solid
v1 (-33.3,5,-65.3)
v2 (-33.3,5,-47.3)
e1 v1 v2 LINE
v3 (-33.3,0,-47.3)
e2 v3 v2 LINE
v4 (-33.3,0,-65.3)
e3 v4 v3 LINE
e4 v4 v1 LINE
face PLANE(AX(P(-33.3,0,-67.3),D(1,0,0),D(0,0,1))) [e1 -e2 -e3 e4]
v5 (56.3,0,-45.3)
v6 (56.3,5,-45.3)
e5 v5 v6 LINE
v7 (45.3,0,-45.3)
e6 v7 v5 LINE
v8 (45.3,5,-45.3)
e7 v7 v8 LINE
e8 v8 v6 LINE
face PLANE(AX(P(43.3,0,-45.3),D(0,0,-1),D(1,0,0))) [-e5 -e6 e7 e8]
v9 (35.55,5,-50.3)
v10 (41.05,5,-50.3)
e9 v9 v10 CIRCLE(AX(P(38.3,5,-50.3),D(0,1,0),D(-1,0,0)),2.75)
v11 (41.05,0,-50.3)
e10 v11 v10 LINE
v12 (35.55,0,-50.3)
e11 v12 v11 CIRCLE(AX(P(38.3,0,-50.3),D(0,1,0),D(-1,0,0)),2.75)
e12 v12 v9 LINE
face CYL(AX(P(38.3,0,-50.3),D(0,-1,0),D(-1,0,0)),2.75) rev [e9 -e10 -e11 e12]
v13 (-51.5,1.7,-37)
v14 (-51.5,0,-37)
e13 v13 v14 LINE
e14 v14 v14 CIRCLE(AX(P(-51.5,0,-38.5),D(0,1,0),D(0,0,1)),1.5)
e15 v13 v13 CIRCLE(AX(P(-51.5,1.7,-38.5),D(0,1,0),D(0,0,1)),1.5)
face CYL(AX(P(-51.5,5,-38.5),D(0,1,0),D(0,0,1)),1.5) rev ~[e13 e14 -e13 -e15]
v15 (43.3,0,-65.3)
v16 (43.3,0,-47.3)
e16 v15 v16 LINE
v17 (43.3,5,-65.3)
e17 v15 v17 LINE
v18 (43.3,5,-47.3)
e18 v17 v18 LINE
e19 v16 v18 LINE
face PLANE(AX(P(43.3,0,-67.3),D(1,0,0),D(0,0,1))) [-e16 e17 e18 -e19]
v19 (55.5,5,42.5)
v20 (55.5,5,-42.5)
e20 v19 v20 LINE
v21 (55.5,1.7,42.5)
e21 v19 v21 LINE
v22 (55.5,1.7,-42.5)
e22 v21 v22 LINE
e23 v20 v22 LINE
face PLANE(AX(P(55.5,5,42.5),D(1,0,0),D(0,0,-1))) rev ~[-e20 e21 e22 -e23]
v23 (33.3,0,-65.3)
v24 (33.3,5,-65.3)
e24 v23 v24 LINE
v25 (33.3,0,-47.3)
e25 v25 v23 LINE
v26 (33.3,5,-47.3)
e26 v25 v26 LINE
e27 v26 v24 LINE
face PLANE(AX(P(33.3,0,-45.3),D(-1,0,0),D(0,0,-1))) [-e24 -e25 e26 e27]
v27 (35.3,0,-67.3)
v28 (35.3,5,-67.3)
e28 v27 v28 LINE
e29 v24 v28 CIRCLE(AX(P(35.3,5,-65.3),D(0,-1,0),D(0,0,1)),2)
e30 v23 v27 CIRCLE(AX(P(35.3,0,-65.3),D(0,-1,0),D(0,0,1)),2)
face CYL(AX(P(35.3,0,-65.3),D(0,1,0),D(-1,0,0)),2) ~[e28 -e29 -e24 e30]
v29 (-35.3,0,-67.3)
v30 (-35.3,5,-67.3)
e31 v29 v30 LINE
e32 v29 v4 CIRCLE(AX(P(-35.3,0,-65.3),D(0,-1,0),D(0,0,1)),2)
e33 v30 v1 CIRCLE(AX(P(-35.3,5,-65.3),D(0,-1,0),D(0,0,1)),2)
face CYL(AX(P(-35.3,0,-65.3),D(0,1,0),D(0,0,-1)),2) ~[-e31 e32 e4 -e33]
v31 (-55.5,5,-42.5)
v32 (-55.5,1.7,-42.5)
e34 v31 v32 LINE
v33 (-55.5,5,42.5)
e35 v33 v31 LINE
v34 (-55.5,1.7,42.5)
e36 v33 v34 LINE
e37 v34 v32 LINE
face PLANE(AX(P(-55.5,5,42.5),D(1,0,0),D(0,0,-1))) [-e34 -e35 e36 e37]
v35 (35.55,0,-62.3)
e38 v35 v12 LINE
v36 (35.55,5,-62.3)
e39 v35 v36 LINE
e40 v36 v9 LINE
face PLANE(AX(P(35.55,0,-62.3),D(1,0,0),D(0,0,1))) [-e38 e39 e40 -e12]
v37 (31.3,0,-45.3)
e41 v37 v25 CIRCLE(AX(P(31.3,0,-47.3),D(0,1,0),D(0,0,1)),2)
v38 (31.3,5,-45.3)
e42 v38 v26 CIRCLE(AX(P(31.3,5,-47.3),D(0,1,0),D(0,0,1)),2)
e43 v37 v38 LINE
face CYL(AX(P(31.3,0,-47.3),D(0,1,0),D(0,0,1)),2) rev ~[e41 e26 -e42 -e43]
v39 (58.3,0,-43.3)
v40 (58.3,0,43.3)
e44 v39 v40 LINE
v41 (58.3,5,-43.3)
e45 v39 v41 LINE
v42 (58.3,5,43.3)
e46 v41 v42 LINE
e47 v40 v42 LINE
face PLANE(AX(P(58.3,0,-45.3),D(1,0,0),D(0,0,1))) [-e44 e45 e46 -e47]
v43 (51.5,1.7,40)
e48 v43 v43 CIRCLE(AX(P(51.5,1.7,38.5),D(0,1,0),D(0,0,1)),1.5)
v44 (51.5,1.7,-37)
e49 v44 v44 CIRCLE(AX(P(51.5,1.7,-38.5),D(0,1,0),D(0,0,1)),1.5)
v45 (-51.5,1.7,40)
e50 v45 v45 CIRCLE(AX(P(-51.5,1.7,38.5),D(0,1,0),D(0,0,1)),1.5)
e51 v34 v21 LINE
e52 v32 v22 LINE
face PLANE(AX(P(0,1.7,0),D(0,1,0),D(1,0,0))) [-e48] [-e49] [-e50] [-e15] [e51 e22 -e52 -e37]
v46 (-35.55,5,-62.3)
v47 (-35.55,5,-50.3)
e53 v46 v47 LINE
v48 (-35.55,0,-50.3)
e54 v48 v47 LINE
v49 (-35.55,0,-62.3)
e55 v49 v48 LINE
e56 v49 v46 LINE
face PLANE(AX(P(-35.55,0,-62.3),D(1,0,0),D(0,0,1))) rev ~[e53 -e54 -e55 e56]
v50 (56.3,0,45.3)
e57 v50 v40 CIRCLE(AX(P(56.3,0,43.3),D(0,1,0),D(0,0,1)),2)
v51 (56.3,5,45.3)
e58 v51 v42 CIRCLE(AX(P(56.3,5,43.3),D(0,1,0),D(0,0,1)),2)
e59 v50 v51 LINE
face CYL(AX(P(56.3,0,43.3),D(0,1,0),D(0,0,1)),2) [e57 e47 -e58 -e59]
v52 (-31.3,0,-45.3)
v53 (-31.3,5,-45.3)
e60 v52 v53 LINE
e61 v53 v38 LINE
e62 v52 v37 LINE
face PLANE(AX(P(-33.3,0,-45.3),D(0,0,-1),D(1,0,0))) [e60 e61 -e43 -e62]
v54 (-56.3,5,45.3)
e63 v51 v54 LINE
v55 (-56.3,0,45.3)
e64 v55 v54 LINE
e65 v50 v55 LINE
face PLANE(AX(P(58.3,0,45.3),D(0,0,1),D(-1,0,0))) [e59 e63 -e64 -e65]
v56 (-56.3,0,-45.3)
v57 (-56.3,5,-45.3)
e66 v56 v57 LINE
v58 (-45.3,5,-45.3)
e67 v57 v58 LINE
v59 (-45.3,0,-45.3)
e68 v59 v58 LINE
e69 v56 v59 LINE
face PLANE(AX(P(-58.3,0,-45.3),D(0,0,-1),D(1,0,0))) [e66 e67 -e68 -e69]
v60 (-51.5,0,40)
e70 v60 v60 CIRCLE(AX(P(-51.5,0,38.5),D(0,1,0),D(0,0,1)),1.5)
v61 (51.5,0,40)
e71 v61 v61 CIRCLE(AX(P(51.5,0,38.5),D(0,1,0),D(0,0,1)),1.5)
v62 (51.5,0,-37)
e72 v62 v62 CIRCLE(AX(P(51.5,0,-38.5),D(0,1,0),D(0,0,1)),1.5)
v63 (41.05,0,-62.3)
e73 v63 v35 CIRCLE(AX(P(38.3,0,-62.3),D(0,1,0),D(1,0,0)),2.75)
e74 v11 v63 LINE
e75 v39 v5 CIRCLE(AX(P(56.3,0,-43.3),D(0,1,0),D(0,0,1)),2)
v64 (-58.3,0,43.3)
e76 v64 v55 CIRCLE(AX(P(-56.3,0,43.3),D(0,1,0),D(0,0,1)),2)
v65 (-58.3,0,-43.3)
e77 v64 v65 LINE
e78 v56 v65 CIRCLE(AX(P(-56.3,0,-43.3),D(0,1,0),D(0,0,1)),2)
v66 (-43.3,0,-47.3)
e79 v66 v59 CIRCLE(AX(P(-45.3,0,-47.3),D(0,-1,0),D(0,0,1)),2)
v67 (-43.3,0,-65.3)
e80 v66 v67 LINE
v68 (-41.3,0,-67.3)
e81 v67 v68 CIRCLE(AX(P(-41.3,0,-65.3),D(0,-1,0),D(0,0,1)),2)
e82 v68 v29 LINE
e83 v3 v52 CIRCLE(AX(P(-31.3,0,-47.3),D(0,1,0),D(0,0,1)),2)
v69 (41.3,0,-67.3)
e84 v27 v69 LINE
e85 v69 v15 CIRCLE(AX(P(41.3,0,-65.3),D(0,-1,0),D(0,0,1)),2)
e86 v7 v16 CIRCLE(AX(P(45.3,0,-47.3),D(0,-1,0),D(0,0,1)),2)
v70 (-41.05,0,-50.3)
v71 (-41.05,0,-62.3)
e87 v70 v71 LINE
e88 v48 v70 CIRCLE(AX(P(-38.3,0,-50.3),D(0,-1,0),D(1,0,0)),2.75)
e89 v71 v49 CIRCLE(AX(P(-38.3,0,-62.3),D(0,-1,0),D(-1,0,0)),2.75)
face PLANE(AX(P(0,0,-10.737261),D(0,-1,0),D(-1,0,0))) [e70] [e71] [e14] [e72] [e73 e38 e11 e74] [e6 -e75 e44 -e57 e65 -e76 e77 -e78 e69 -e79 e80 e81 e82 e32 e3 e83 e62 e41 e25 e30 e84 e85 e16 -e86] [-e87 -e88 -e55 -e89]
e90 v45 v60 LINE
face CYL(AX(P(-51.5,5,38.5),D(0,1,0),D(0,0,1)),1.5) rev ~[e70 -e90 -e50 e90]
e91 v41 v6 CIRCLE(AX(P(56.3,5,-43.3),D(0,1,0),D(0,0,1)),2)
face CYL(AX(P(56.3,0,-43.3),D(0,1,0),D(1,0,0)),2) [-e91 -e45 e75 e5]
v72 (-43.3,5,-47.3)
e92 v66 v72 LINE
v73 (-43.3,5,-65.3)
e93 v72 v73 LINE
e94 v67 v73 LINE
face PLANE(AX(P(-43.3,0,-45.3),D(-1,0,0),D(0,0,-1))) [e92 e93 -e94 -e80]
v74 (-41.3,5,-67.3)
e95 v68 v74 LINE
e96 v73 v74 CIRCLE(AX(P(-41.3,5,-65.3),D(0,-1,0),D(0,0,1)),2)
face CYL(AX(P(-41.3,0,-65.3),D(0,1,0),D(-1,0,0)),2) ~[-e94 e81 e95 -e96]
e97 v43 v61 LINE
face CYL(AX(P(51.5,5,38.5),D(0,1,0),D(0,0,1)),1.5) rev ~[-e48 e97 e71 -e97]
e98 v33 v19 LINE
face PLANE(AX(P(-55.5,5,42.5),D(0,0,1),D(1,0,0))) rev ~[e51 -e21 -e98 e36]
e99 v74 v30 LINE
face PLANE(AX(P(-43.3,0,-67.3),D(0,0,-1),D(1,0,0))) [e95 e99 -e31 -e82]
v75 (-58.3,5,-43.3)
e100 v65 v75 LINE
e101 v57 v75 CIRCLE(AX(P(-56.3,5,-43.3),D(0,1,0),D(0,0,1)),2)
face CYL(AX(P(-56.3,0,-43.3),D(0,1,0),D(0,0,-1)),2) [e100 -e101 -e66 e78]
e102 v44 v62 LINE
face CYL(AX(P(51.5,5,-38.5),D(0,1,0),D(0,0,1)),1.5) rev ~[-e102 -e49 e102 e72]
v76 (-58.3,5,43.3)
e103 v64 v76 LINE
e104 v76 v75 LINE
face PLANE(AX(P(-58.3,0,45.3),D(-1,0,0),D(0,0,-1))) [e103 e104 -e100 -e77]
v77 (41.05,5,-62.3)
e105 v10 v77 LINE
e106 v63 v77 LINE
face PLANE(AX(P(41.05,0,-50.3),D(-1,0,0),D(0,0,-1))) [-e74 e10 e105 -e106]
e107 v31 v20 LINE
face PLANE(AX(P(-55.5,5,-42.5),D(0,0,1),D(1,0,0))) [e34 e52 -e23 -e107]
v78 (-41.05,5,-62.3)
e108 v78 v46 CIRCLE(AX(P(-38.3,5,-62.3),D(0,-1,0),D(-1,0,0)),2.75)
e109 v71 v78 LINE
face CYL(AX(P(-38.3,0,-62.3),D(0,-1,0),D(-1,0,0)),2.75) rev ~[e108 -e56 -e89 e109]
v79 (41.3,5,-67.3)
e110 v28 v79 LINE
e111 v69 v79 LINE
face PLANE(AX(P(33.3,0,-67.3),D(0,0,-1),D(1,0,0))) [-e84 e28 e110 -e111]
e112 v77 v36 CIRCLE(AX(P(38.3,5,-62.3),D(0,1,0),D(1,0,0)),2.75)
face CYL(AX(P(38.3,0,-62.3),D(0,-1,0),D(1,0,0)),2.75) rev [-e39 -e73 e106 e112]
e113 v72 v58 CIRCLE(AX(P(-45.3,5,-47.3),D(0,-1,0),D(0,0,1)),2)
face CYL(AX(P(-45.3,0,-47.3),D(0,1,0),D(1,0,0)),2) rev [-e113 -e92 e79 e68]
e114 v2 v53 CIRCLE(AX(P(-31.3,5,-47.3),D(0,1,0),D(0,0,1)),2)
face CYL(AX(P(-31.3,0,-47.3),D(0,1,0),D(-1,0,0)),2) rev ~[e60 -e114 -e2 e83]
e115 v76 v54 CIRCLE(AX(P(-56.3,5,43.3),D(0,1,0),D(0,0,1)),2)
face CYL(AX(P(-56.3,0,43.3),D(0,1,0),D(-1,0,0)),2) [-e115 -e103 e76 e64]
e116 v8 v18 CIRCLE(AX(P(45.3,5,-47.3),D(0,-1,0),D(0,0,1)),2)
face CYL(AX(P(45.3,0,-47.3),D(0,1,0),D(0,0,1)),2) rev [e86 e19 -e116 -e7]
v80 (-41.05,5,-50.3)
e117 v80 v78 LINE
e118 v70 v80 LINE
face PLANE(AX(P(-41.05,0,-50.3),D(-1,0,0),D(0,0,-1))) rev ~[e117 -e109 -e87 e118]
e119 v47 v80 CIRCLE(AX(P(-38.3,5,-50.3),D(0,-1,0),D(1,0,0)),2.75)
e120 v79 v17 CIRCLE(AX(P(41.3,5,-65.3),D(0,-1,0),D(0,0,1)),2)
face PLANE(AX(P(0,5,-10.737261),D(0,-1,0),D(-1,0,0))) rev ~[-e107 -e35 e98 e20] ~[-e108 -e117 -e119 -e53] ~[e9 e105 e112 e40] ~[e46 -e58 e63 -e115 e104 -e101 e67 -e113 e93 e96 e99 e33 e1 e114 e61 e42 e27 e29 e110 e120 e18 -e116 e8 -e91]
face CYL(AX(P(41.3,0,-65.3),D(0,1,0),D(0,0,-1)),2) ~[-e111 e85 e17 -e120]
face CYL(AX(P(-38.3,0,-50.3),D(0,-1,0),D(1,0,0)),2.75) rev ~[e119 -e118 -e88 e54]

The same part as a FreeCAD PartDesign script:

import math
import FreeCAD as App
import Part
import Sketcher
from FreeCAD import Vector
Q = App.Units.Quantity


def edges_at(feature, points):
    """Names of the edges that pass closest to the given points."""
    edges = feature.Shape.Edges
    near = lambda p: min(range(len(edges)), key=lambda i: edges[i].distToShape(Part.Vertex(*p))[0])
    return sorted({f"Edge{near(p) + 1}" for p in points})

doc = App.newDocument("Part")
params = doc.addObject("Spreadsheet::Sheet", "Params")
for row, (alias, value) in enumerate([
    ("sketch1_width", "15 mm"),
    ("sketch1_width2", "10 mm"),
    ("sketch1_height", "22 mm"),
    ("sketch1_height2", "12 mm"),
    ("sketch1_radius", "2.75 mm"),
    ("pad1_length", "5 mm"),
    ("sketch2_diameter", "3 mm"),
    ("sketch3_diameter", "3 mm"),
    ("sketch3_width", "111 mm"),
    ("sketch3_height", "85 mm"),
    ("pocket2_length", "3.3 mm"),
    ("fillet_radius", "2 mm"),
], start=1):
    params.set(f"A{row}", alias)
    params.set(f"B{row}", "=" + value)
    params.setAlias(f"B{row}", alias)

body = doc.addObject("PartDesign::Body", "Body")

# Sketch on XZ plane
sketch1 = body.newObject("Sketcher::SketchObject", "Sketch")
sketch1.AttachmentSupport = (doc.getObject("XZ_Plane"), [""])
sketch1.MapMode = "FlatFace"
sketch1.addGeometry(Part.LineSegment(Vector(-43.3, -67.3, 0), Vector(-43.3, -45.3, 0)), False)
sketch1.addGeometry(Part.LineSegment(Vector(-43.3, -45.3, 0), Vector(-58.3, -45.3, 0)), False)
sketch1.addGeometry(Part.LineSegment(Vector(-58.3, -45.3, 0), Vector(-58.3, 45.3, 0)), False)
sketch1.addGeometry(Part.LineSegment(Vector(-58.3, 45.3, 0), Vector(58.3, 45.3, 0)), False)
sketch1.addGeometry(Part.LineSegment(Vector(58.3, 45.3, 0), Vector(58.3, -45.3, 0)), False)
sketch1.addGeometry(Part.LineSegment(Vector(58.3, -45.3, 0), Vector(43.3, -45.3, 0)), False)
sketch1.addGeometry(Part.LineSegment(Vector(43.3, -45.3, 0), Vector(43.3, -67.3, 0)), False)
sketch1.addGeometry(Part.LineSegment(Vector(43.3, -67.3, 0), Vector(33.3, -67.3, 0)), False)
sketch1.addGeometry(Part.LineSegment(Vector(33.3, -67.3, 0), Vector(33.3, -45.3, 0)), False)
sketch1.addGeometry(Part.LineSegment(Vector(33.3, -45.3, 0), Vector(-33.3, -45.3, 0)), False)
sketch1.addGeometry(Part.LineSegment(Vector(-33.3, -45.3, 0), Vector(-33.3, -67.3, 0)), False)
sketch1.addGeometry(Part.LineSegment(Vector(-33.3, -67.3, 0), Vector(-43.3, -67.3, 0)), False)
sketch1.addGeometry(Part.ArcOfCircle(Part.Circle(Vector(38.3, -62.3, 0), Vector(0, 0, 1), 2.75), math.radians(180), math.radians(360)), False)
sketch1.addGeometry(Part.LineSegment(Vector(41.05, -62.3, 0), Vector(41.05, -50.3, 0)), False)
sketch1.addGeometry(Part.ArcOfCircle(Part.Circle(Vector(38.3, -50.3, 0), Vector(0, 0, 1), 2.75), math.radians(0), math.radians(180)), False)
sketch1.addGeometry(Part.LineSegment(Vector(35.55, -50.3, 0), Vector(35.55, -62.3, 0)), False)
sketch1.addGeometry(Part.LineSegment(Vector(-35.55, -62.3, 0), Vector(-35.55, -50.3, 0)), False)
sketch1.addGeometry(Part.ArcOfCircle(Part.Circle(Vector(-38.3, -50.3, 0), Vector(0, 0, 1), 2.75), math.radians(0), math.radians(180)), False)
sketch1.addGeometry(Part.LineSegment(Vector(-41.05, -50.3, 0), Vector(-41.05, -62.3, 0)), False)
sketch1.addGeometry(Part.ArcOfCircle(Part.Circle(Vector(-38.3, -62.3, 0), Vector(0, 0, 1), 2.75), math.radians(180), math.radians(360)), False)
sketch1.addConstraint(Sketcher.Constraint("Coincident", 0, 2, 1, 1))
sketch1.addConstraint(Sketcher.Constraint("Coincident", 1, 2, 2, 1))
sketch1.addConstraint(Sketcher.Constraint("Coincident", 2, 2, 3, 1))
sketch1.addConstraint(Sketcher.Constraint("Coincident", 3, 2, 4, 1))
sketch1.addConstraint(Sketcher.Constraint("Coincident", 4, 2, 5, 1))
sketch1.addConstraint(Sketcher.Constraint("Coincident", 5, 2, 6, 1))
sketch1.addConstraint(Sketcher.Constraint("Coincident", 6, 2, 7, 1))
sketch1.addConstraint(Sketcher.Constraint("Coincident", 7, 2, 8, 1))
sketch1.addConstraint(Sketcher.Constraint("Coincident", 8, 2, 9, 1))
sketch1.addConstraint(Sketcher.Constraint("Coincident", 9, 2, 10, 1))
sketch1.addConstraint(Sketcher.Constraint("Coincident", 10, 2, 11, 1))
sketch1.addConstraint(Sketcher.Constraint("Coincident", 11, 2, 0, 1))
sketch1.addConstraint(Sketcher.Constraint("Tangent", 12, 2, 13, 1))
sketch1.addConstraint(Sketcher.Constraint("Tangent", 13, 2, 14, 1))
sketch1.addConstraint(Sketcher.Constraint("Tangent", 14, 2, 15, 1))
sketch1.addConstraint(Sketcher.Constraint("Tangent", 15, 2, 12, 1))
sketch1.addConstraint(Sketcher.Constraint("Tangent", 16, 2, 17, 1))
sketch1.addConstraint(Sketcher.Constraint("Tangent", 17, 2, 18, 1))
sketch1.addConstraint(Sketcher.Constraint("Tangent", 18, 2, 19, 1))
sketch1.addConstraint(Sketcher.Constraint("Tangent", 19, 2, 16, 1))
sketch1.addConstraint(Sketcher.Constraint("Vertical", 0))
sketch1.addConstraint(Sketcher.Constraint("Horizontal", 1))
sketch1.addConstraint(Sketcher.Constraint("Vertical", 2))
sketch1.addConstraint(Sketcher.Constraint("Horizontal", 3))
sketch1.addConstraint(Sketcher.Constraint("Vertical", 4))
sketch1.addConstraint(Sketcher.Constraint("Horizontal", 5))
sketch1.addConstraint(Sketcher.Constraint("Vertical", 6))
sketch1.addConstraint(Sketcher.Constraint("Horizontal", 7))
sketch1.addConstraint(Sketcher.Constraint("Vertical", 8))
sketch1.addConstraint(Sketcher.Constraint("Horizontal", 9))
sketch1.addConstraint(Sketcher.Constraint("Vertical", 10))
sketch1.addConstraint(Sketcher.Constraint("Horizontal", 11))
sketch1.addConstraint(Sketcher.Constraint("Vertical", 13))
sketch1.addConstraint(Sketcher.Constraint("Vertical", 15))
sketch1.addConstraint(Sketcher.Constraint("Vertical", 16))
sketch1.addConstraint(Sketcher.Constraint("Vertical", 18))
sketch1.addConstraint(Sketcher.Constraint("Equal", 14, 17))
sketch1.addConstraint(Sketcher.Constraint("Symmetric", 1, 2, 3, 2, -1, 1))
sketch1.addConstraint(Sketcher.Constraint("Symmetric", 14, 3, 17, 3, -2))
sketch1.addConstraint(Sketcher.Constraint("Symmetric", 0, 2, 5, 2, -2))
sketch1.addConstraint(Sketcher.Constraint("Symmetric", 7, 2, 10, 2, -2))
sketch1.addConstraint(Sketcher.Constraint("Horizontal", 12, 3, 19, 3))
sketch1.addConstraint(Sketcher.Constraint("Horizontal", 5, 2, 8, 2))
sketch1.addConstraint(Sketcher.Constraint("DistanceX", 1, 2, 1, 1, Q("15 mm")))
sketch1.addConstraint(Sketcher.Constraint("DistanceX", 7, 2, 7, 1, Q("10 mm")))
sketch1.addConstraint(Sketcher.Constraint("DistanceY", 0, 1, 0, 2, Q("22 mm")))
sketch1.addConstraint(Sketcher.Constraint("DistanceY", 13, 1, 13, 2, Q("12 mm")))
sketch1.addConstraint(Sketcher.Constraint("Radius", 12, Q("2.75 mm")))
sketch1.addConstraint(Sketcher.Constraint("DistanceX", 3, 1, 3, 2, Q("116.6 mm")))
sketch1.addConstraint(Sketcher.Constraint("DistanceY", 2, 1, 2, 2, Q("90.6 mm")))
sketch1.addConstraint(Sketcher.Constraint("DistanceX", 0, 2, 17, 3, Q("5 mm")))
sketch1.addConstraint(Sketcher.Constraint("DistanceY", 17, 3, 0, 2, Q("5 mm")))
sketch1.setExpression("Constraints[43]", "Params.sketch1_width")
sketch1.setExpression("Constraints[44]", "Params.sketch1_width2")
sketch1.setExpression("Constraints[45]", "Params.sketch1_height")
sketch1.setExpression("Constraints[46]", "Params.sketch1_height2")
sketch1.setExpression("Constraints[47]", "Params.sketch1_radius")
pad1 = body.newObject("PartDesign::Pad", "Pad")
pad1.Profile = sketch1
pad1.setExpression("Length", "Params.pad1_length")
pad1.Reversed = True

# Sketch on XZ plane
sketch2 = body.newObject("Sketcher::SketchObject", "Sketch001")
sketch2.AttachmentSupport = (doc.getObject("XZ_Plane"), [""])
sketch2.MapMode = "FlatFace"
sketch2.AttachmentOffset = App.Placement(Vector(0, 0, -5), App.Rotation())
sketch2.addGeometry(Part.Circle(Vector(-51.5, -38.5, 0), Vector(0, 0, 1), 1.5), False)
sketch2.addGeometry(Part.Circle(Vector(-51.5, 38.5, 0), Vector(0, 0, 1), 1.5), False)
sketch2.addGeometry(Part.Circle(Vector(51.5, 38.5, 0), Vector(0, 0, 1), 1.5), False)
sketch2.addGeometry(Part.Circle(Vector(51.5, -38.5, 0), Vector(0, 0, 1), 1.5), False)
sketch2.addConstraint(Sketcher.Constraint("Equal", 0, 1))
sketch2.addConstraint(Sketcher.Constraint("Equal", 1, 2))
sketch2.addConstraint(Sketcher.Constraint("Equal", 2, 3))
sketch2.addConstraint(Sketcher.Constraint("Symmetric", 0, 3, 2, 3, -1, 1))
sketch2.addConstraint(Sketcher.Constraint("Symmetric", 1, 3, 3, 3, -1, 1))
sketch2.addConstraint(Sketcher.Constraint("Symmetric", 1, 3, 2, 3, -2))
sketch2.addConstraint(Sketcher.Constraint("Diameter", 0, Q("3 mm")))
sketch2.addConstraint(Sketcher.Constraint("DistanceY", 0, 3, 1, 3, Q("77 mm")))
sketch2.addConstraint(Sketcher.Constraint("DistanceX", 1, 3, 2, 3, Q("103 mm")))
sketch2.setExpression("Constraints[6]", "Params.sketch2_diameter")
pocket1 = body.newObject("PartDesign::Pocket", "Pocket")
pocket1.Profile = sketch2
pocket1.Type = "ThroughAll"
pocket1.Reversed = True

# Sketch on XZ plane
sketch3 = body.newObject("Sketcher::SketchObject", "Sketch002")
sketch3.AttachmentSupport = (doc.getObject("XZ_Plane"), [""])
sketch3.MapMode = "FlatFace"
sketch3.AttachmentOffset = App.Placement(Vector(0, 0, -5), App.Rotation())
sketch3.addGeometry(Part.LineSegment(Vector(-55.5, -42.5, 0), Vector(-55.5, 42.5, 0)), False)
sketch3.addGeometry(Part.LineSegment(Vector(-55.5, 42.5, 0), Vector(55.5, 42.5, 0)), False)
sketch3.addGeometry(Part.LineSegment(Vector(55.5, 42.5, 0), Vector(55.5, -42.5, 0)), False)
sketch3.addGeometry(Part.LineSegment(Vector(55.5, -42.5, 0), Vector(-55.5, -42.5, 0)), False)
sketch3.addGeometry(Part.Circle(Vector(-51.5, 38.5, 0), Vector(0, 0, 1), 1.5), False)
sketch3.addGeometry(Part.Circle(Vector(51.5, 38.5, 0), Vector(0, 0, 1), 1.5), False)
sketch3.addGeometry(Part.Circle(Vector(-51.5, -38.5, 0), Vector(0, 0, 1), 1.5), False)
sketch3.addGeometry(Part.Circle(Vector(51.5, -38.5, 0), Vector(0, 0, 1), 1.5), False)
sketch3.addConstraint(Sketcher.Constraint("Coincident", 0, 2, 1, 1))
sketch3.addConstraint(Sketcher.Constraint("Coincident", 1, 2, 2, 1))
sketch3.addConstraint(Sketcher.Constraint("Coincident", 2, 2, 3, 1))
sketch3.addConstraint(Sketcher.Constraint("Coincident", 3, 2, 0, 1))
sketch3.addConstraint(Sketcher.Constraint("Vertical", 0))
sketch3.addConstraint(Sketcher.Constraint("Horizontal", 1))
sketch3.addConstraint(Sketcher.Constraint("Vertical", 2))
sketch3.addConstraint(Sketcher.Constraint("Horizontal", 3))
sketch3.addConstraint(Sketcher.Constraint("Equal", 4, 5))
sketch3.addConstraint(Sketcher.Constraint("Equal", 5, 6))
sketch3.addConstraint(Sketcher.Constraint("Equal", 6, 7))
sketch3.addConstraint(Sketcher.Constraint("Symmetric", 5, 3, 6, 3, -1, 1))
sketch3.addConstraint(Sketcher.Constraint("Symmetric", 4, 3, 7, 3, -1, 1))
sketch3.addConstraint(Sketcher.Constraint("Symmetric", 0, 2, 2, 2, -1, 1))
sketch3.addConstraint(Sketcher.Constraint("Symmetric", 4, 3, 5, 3, -2))
sketch3.addConstraint(Sketcher.Constraint("Diameter", 4, Q("3 mm")))
sketch3.addConstraint(Sketcher.Constraint("DistanceX", 1, 1, 1, 2, Q("111 mm")))
sketch3.addConstraint(Sketcher.Constraint("DistanceY", 0, 1, 0, 2, Q("85 mm")))
sketch3.addConstraint(Sketcher.Constraint("DistanceX", 4, 3, 5, 3, Q("103 mm")))
sketch3.addConstraint(Sketcher.Constraint("DistanceY", 6, 3, 4, 3, Q("77 mm")))
sketch3.setExpression("Constraints[15]", "Params.sketch3_diameter")
sketch3.setExpression("Constraints[16]", "Params.sketch3_width")
sketch3.setExpression("Constraints[17]", "Params.sketch3_height")
pocket2 = body.newObject("PartDesign::Pocket", "Pocket001")
pocket2.Profile = sketch3
pocket2.setExpression("Length", "Params.pocket2_length")
pocket2.Reversed = True
doc.recompute()

fillet = body.newObject("PartDesign::Fillet", "Fillet")
fillet.Base = (pocket2, edges_at(pocket2, [
    (-58.3, 2.5, -45.3),
    (-43.3, 2.5, -45.3),
    (-43.3, 2.5, -67.3),
    (-33.3, 2.5, -67.3),
    (-33.3, 2.5, -45.3),
    (33.3, 2.5, -45.3),
    (33.3, 2.5, -67.3),
    (43.3, 2.5, -67.3),
    (43.3, 2.5, -45.3),
    (58.3, 2.5, -45.3),
    (58.3, 2.5, 45.3),
    (-58.3, 2.5, 45.3),
]))
fillet.setExpression("Radius", "Params.fillet_radius")

doc.recompute()
